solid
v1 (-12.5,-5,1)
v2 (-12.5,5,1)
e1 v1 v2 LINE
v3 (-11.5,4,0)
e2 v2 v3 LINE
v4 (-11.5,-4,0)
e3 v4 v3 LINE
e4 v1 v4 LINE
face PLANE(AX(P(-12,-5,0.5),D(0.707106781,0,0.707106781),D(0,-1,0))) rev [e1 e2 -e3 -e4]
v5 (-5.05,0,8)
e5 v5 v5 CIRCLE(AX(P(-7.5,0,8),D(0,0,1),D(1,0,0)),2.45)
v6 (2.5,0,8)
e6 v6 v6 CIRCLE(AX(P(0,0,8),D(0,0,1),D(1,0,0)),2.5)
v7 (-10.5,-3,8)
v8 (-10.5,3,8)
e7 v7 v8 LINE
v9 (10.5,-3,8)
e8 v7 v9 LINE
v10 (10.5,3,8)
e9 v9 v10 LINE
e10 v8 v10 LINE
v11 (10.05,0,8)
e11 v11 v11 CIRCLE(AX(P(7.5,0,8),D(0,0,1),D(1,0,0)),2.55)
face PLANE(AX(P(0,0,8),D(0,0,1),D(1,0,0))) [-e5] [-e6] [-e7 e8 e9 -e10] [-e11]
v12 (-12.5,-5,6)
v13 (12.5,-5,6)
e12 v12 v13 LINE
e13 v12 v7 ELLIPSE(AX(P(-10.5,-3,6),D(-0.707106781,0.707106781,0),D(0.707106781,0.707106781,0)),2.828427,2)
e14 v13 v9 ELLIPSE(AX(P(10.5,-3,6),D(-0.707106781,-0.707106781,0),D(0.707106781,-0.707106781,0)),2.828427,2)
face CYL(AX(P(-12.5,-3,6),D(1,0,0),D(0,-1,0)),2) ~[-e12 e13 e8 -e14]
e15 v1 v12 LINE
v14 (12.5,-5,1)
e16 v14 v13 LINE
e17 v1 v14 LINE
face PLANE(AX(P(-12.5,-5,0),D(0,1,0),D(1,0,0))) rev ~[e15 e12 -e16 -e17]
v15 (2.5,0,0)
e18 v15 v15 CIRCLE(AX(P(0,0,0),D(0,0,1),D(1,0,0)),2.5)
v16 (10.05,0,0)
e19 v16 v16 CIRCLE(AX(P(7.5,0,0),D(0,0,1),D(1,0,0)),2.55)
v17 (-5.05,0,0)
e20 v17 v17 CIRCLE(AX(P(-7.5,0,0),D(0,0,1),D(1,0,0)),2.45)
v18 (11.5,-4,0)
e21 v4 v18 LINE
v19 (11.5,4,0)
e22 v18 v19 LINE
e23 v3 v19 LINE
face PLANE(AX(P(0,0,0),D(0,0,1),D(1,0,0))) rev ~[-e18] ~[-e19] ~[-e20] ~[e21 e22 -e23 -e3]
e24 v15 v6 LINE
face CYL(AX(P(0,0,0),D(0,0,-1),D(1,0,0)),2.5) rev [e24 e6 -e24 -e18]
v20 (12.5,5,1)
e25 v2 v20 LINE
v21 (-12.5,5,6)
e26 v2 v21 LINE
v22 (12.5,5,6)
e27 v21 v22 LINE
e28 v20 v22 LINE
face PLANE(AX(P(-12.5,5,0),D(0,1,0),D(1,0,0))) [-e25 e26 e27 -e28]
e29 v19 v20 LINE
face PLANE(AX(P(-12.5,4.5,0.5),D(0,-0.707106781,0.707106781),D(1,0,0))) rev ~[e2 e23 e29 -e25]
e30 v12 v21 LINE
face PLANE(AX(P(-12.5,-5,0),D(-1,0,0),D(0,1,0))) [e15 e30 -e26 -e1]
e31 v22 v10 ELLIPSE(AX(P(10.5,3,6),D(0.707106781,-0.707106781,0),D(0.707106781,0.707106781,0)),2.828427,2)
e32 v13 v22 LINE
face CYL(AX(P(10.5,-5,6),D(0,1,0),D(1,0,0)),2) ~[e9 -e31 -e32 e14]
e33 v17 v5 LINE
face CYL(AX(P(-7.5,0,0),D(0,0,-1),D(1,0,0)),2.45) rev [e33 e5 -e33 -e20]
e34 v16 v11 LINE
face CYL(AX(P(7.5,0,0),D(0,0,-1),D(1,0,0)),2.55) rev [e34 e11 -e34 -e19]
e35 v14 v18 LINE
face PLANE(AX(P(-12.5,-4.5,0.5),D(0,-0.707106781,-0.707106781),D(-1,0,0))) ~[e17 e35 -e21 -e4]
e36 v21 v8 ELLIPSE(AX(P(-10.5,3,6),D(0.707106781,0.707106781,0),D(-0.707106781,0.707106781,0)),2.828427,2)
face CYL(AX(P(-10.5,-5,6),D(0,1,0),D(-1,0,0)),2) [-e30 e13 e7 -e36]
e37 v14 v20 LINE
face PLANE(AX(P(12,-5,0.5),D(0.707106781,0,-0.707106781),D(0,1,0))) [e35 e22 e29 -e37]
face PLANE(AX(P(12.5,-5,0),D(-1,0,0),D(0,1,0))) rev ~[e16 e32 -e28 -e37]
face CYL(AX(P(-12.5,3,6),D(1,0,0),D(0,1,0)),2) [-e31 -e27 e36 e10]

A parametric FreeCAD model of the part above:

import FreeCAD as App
import Part
import Sketcher
from FreeCAD import Vector


def edges_at(feature, points):
    """Names of the edges that pass closest to the given points."""
    edges = feature.Shape.Edges
    near = lambda p: min(range(len(edges)), key=lambda i: edges[i].distToShape(Part.Vertex(*p))[0])
    return sorted({f"Edge{near(p) + 1}" for p in points})


def add_polygon(sketch, points):
    """Adds a closed chain of lines whose ends are joined by coincident constraints."""
    first, n = sketch.GeometryCount, len(points)
    for a, b in zip(points, points[1:] + points[:1]):
        sketch.addGeometry(Part.LineSegment(App.Vector(*a, 0), App.Vector(*b, 0)), False)
    for i in range(n):
        sketch.addConstraint(Sketcher.Constraint("Coincident", first + i, 2, first + (i + 1) % n, 1))

doc = App.newDocument("Part")
body = doc.addObject("PartDesign::Body", "Body")

sketch1 = body.newObject("Sketcher::SketchObject", "Sketch")
sketch1.AttachmentSupport = (doc.getObject("XY_Plane"), [""])
sketch1.MapMode = "FlatFace"
add_polygon(sketch1, [(-12.5, 5), (-12.5, -5), (12.5, -5), (12.5, 5)])
sketch1.addGeometry(Part.Circle(Vector(-7.5, 0, 0), Vector(0, 0, 1), 2.45), False)
sketch1.addGeometry(Part.Circle(Vector(0, 0, 0), Vector(0, 0, 1), 2.5), False)
sketch1.addGeometry(Part.Circle(Vector(7.5, 0, 0), Vector(0, 0, 1), 2.55), False)
sketch1.addConstraint([
    Sketcher.Constraint("Vertical", 0),
    Sketcher.Constraint("Horizontal", 1),
    Sketcher.Constraint("Vertical", 2),
    Sketcher.Constraint("Horizontal", 3),
    Sketcher.Constraint("Coincident", 5, 3, -1, 1),
    Sketcher.Constraint("Symmetric", 4, 3, 6, 3, -1, 1),
    Sketcher.Constraint("Symmetric", 0, 2, 2, 2, -1, 1),
    Sketcher.Constraint("PointOnObject", 4, 3, -1),
    Sketcher.Constraint("Diameter", 5, 5.0),
    Sketcher.Constraint("Diameter", 4, 4.9),
    Sketcher.Constraint("Diameter", 6, 5.1),
    Sketcher.Constraint("DistanceX", 1, 1, 1, 2, 25.0),
    Sketcher.Constraint("DistanceY", 0, 2, 0, 1, 10.0),
    Sketcher.Constraint("DistanceX", 4, 3, 6, 3, 15.0),
])
pad1 = body.newObject("PartDesign::Pad", "Pad")
pad1.Profile = sketch1
pad1.Length = 8
doc.recompute()

fillet = body.newObject("PartDesign::Fillet", "Fillet")
fillet.Base = (pad1, edges_at(pad1, [
    (0, -5, 8),
    (-12.5, 0, 8),
    (0, 5, 8),
    (12.5, 0, 8),
]))
fillet.Radius = 2
doc.recompute()

chamfer = body.newObject("PartDesign::Chamfer", "Chamfer")
chamfer.Base = (fillet, edges_at(fillet, [
    (-12.5, 0, 0),
    (0, -5, 0),
    (0, 5, 0),
    (12.5, 0, 0),
]))
chamfer.Size = 1

doc.recompute()
